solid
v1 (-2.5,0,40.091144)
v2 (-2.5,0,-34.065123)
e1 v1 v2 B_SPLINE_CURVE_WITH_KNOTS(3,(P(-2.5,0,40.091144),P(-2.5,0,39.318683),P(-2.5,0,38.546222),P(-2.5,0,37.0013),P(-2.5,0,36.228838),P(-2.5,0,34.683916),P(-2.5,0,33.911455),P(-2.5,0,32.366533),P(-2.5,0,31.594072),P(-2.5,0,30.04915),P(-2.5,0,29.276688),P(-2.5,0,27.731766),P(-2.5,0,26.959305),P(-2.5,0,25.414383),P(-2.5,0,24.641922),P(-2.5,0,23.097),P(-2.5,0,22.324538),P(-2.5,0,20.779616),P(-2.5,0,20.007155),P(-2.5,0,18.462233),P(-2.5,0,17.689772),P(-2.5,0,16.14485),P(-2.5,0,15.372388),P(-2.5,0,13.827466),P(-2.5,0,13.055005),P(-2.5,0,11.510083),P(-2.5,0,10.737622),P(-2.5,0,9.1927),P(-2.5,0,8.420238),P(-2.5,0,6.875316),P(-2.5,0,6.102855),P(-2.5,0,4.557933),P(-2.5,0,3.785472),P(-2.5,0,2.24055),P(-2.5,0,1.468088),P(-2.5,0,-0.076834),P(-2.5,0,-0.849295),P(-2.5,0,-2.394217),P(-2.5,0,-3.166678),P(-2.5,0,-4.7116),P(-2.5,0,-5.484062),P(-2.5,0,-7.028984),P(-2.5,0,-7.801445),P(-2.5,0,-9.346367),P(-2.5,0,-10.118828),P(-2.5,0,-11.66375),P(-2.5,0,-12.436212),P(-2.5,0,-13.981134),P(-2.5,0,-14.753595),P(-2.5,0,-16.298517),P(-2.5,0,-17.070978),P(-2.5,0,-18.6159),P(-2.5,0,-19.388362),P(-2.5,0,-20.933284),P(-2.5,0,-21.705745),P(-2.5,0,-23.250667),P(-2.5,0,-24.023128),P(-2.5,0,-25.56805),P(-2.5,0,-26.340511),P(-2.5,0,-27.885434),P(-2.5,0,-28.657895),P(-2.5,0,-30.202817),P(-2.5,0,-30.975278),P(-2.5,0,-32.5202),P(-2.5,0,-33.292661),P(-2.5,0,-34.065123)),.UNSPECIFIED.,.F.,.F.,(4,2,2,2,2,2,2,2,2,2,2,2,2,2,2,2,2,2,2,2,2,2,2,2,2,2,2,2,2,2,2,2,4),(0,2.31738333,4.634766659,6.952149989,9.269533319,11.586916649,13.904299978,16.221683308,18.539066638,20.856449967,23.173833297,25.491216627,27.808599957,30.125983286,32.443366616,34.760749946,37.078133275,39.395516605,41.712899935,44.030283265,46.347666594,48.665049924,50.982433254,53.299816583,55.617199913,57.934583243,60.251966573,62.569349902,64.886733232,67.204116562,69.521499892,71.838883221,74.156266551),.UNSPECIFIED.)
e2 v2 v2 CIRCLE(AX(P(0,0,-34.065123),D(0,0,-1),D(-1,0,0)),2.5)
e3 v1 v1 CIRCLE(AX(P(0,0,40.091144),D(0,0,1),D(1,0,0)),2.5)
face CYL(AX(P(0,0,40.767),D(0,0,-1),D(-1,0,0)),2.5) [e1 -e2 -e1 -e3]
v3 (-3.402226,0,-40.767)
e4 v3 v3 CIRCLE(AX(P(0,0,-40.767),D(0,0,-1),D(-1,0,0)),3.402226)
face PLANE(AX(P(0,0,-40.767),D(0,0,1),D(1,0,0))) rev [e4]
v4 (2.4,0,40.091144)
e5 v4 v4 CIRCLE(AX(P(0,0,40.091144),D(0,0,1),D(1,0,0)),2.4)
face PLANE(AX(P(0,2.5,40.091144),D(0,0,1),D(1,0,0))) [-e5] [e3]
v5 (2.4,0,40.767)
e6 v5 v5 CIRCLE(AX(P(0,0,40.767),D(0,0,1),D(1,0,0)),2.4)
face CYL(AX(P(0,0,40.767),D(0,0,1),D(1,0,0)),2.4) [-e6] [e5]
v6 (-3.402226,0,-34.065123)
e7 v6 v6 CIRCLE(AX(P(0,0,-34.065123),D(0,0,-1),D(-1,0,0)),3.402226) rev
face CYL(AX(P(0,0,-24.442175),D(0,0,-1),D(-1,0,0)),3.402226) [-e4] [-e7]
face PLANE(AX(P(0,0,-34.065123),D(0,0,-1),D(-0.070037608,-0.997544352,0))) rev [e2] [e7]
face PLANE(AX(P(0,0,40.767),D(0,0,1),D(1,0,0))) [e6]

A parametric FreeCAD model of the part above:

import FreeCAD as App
import Part
import Sketcher
from FreeCAD import Vector

doc = App.newDocument("Part")
params = doc.addObject("Spreadsheet::Sheet", "Params")
for row, (alias, value) in enumerate([
    ("sketch1_diameter", "5 mm"),
    ("pad1_length", "81.534 mm"),
    ("sketch2_width", "0.1 mm"),
    ("sketch2_height", "0.7 mm"),
    ("groove_angle", "360 deg"),
    ("pad2_length", "6.701877 mm"),
], start=1):
    params.set(f"A{row}", alias)
    params.set(f"B{row}", "=" + value)
    params.setAlias(f"B{row}", alias)

body = doc.addObject("PartDesign::Body", "Body")

sketch1 = body.newObject("Sketcher::SketchObject", "Sketch")
sketch1.AttachmentSupport = (doc.getObject("XY_Plane"), [""])
sketch1.MapMode = "FlatFace"
sketch1.addGeometry(Part.Circle(Vector(0, 0, 0), Vector(0, 0, 1), 2.5), False)
sketch1.addConstraint([
    Sketcher.Constraint("Coincident", 0, 3, -1, 1),
    Sketcher.Constraint("Diameter", 0, 5.0),
])
sketch1.setExpression("Constraints[1]", "Params.sketch1_diameter")
pad1 = body.newObject("PartDesign::Pad", "Pad")
pad1.Profile = sketch1
pad1.setExpression("Length", "Params.pad1_length")
pad1.Midplane = True

sketch2 = body.newObject("Sketcher::SketchObject", "Sketch001")
sketch2.AttachmentSupport = (doc.getObject("YZ_Plane"), [""])
sketch2.MapMode = "FlatFace"
sketch2.addGeometry([
    Part.LineSegment(Vector(2.5, 40.79, 0), Vector(2.4, 40.79, 0)),
    Part.LineSegment(Vector(2.4, 40.79, 0), Vector(2.4, 40.09, 0)),
    Part.LineSegment(Vector(2.4, 40.09, 0), Vector(2.5, 40.09, 0)),
    Part.LineSegment(Vector(2.5, 40.09, 0), Vector(2.5, 40.79, 0)),
], False)
sketch2.addConstraint([
    Sketcher.Constraint("Coincident", 0, 2, 1, 1),
    Sketcher.Constraint("Coincident", 1, 2, 2, 1),
    Sketcher.Constraint("Coincident", 2, 2, 3, 1),
    Sketcher.Constraint("Coincident", 3, 2, 0, 1),
    Sketcher.Constraint("Horizontal", 0),
    Sketcher.Constraint("Vertical", 1),
    Sketcher.Constraint("Horizontal", 2),
    Sketcher.Constraint("Vertical", 3),
    Sketcher.Constraint("DistanceX", 0, 2, 0, 1, 0.1),
    Sketcher.Constraint("DistanceY", 1, 2, 1, 1, 0.7),
    Sketcher.Constraint("DistanceX", -1, 1, 0, 2, 2.4),
    Sketcher.Constraint("DistanceY", -1, 1, 0, 2, 40.791144),
])
sketch2.setExpression("Constraints[8]", "Params.sketch2_width")
sketch2.setExpression("Constraints[9]", "Params.sketch2_height")
groove = body.newObject("PartDesign::Groove", "Groove")
groove.Profile = sketch2
groove.ReferenceAxis = (sketch2, ["V_Axis"])
groove.setExpression("Angle", "Params.groove_angle")

sketch3 = body.newObject("Sketcher::SketchObject", "Sketch002")
sketch3.AttachmentSupport = (doc.getObject("XY_Plane"), [""])
sketch3.MapMode = "FlatFace"
sketch3.AttachmentOffset = App.Placement(Vector(0, 0, -40.767), App.Rotation())
sketch3.addGeometry(Part.Circle(Vector(0, 0, 0), Vector(0, 0, 1), 3.4), False)
sketch3.addConstraint([
    Sketcher.Constraint("Coincident", 0, 3, -1, 1),
    Sketcher.Constraint("Diameter", 0, 6.804451),
])
pad2 = body.newObject("PartDesign::Pad", "Pad001")
pad2.Profile = sketch3
pad2.setExpression("Length", "Params.pad2_length")

doc.recompute()
